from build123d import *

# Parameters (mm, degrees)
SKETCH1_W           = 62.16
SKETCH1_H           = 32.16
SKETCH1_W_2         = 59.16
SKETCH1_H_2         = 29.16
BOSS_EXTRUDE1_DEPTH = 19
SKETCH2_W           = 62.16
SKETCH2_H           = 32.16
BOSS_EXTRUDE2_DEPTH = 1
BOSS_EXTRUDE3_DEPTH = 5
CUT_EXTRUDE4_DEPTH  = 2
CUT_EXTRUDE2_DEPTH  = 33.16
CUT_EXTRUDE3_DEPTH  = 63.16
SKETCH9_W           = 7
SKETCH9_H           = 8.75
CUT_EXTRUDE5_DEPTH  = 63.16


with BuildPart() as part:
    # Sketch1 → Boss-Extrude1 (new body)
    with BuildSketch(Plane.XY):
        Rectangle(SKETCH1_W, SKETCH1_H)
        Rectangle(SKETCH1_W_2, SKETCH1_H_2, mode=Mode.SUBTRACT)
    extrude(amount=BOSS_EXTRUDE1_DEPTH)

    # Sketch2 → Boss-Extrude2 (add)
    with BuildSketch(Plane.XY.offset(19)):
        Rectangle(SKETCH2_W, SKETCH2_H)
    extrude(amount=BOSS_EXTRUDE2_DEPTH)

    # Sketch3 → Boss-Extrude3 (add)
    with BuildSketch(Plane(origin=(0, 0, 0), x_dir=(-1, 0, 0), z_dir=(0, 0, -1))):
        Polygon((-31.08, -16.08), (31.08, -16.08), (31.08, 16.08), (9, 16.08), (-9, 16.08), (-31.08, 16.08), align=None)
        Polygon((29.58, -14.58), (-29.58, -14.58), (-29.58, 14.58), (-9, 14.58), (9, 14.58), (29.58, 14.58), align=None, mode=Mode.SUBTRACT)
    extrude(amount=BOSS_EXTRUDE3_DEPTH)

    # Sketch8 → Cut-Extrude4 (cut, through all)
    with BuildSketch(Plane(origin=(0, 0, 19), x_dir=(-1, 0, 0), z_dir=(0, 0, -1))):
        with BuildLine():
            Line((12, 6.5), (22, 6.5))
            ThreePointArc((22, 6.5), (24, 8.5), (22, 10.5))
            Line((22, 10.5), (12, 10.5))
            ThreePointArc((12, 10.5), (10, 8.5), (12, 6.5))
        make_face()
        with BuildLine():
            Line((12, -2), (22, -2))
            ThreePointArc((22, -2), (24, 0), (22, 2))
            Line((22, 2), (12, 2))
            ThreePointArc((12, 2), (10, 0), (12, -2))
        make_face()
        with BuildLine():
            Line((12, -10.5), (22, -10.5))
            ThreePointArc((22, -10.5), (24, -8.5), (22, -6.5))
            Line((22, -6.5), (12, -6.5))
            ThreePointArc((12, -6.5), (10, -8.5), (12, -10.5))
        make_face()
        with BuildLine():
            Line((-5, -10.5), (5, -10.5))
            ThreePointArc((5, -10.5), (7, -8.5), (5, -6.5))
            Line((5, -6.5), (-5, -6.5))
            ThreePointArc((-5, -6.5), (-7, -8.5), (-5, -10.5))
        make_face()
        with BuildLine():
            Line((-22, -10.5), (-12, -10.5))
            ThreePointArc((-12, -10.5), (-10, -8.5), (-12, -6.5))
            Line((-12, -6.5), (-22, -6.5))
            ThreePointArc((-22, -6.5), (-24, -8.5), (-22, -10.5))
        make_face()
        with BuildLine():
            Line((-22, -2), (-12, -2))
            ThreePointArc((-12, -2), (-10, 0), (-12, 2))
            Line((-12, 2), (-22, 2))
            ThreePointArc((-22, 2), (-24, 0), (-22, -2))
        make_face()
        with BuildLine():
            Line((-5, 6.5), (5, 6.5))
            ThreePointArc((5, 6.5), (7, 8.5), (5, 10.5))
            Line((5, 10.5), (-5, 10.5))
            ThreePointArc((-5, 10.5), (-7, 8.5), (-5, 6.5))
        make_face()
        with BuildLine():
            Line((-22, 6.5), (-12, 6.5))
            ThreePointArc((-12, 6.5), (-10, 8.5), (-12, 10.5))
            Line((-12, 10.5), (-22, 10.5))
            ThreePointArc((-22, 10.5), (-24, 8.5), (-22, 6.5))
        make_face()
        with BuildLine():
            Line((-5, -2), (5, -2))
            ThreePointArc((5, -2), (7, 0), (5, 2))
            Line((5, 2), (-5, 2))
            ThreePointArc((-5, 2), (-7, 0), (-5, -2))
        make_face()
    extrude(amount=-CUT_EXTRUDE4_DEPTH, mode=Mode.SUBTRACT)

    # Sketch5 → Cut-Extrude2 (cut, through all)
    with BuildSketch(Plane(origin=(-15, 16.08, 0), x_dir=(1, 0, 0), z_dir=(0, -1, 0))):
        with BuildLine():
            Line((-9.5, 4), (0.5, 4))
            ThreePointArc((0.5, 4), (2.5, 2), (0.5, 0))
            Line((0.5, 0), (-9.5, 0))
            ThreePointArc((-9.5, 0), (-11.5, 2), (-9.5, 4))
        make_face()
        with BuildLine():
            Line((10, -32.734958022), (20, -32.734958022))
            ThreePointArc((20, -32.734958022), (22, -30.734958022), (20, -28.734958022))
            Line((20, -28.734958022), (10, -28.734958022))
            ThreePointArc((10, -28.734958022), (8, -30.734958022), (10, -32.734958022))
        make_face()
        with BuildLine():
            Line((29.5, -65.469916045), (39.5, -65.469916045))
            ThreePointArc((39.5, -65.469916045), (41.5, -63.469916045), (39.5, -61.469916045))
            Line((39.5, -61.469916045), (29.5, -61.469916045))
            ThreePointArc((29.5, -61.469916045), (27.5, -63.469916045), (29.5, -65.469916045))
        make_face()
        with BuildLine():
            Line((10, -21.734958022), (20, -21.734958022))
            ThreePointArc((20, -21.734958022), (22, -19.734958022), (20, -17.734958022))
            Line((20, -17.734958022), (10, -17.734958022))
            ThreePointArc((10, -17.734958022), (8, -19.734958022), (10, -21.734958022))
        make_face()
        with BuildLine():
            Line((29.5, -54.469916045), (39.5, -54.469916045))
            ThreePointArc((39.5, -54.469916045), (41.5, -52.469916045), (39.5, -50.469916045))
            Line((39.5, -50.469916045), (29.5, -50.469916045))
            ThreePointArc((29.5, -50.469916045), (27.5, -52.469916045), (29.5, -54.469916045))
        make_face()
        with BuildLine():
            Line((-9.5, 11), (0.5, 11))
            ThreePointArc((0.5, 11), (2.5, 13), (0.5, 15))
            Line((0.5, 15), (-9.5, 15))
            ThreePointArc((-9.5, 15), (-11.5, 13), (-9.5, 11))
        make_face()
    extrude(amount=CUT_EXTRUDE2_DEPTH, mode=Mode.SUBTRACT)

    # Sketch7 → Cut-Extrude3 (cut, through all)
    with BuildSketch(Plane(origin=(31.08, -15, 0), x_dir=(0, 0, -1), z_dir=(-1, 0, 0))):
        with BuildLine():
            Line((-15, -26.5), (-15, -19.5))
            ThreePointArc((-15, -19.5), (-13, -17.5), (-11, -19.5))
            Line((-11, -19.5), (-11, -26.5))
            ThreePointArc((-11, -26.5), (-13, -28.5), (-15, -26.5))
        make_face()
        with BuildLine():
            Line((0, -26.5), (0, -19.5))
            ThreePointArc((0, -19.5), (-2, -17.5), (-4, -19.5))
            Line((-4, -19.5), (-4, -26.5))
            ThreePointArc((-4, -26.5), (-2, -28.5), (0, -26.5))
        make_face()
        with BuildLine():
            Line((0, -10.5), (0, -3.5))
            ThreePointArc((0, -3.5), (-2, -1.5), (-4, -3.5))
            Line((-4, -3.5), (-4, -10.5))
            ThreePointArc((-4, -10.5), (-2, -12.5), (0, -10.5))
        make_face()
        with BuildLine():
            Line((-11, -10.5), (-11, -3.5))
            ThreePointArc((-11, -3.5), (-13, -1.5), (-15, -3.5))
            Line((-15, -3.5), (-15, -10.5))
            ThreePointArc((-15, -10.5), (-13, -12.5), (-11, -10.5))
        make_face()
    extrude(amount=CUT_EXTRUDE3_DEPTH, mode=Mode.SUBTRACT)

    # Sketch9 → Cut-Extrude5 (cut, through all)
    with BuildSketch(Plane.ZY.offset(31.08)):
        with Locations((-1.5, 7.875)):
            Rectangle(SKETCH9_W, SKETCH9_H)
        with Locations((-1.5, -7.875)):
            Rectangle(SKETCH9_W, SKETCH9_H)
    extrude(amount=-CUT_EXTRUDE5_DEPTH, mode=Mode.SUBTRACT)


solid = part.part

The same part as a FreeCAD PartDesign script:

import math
import FreeCAD as App
import Part
import Sketcher

V = App.Vector
Q = App.Units.Quantity


def add_polygon(sketch, points):
    """Adds a closed chain of lines whose ends are joined by coincident constraints."""
    first, n = sketch.GeometryCount, len(points)
    for a, b in zip(points, points[1:] + points[:1]):
        sketch.addGeometry(Part.LineSegment(App.Vector(*a, 0), App.Vector(*b, 0)), False)
    for i in range(n):
        sketch.addConstraint(Sketcher.Constraint("Coincident", first + i, 2, first + (i + 1) % n, 1))

doc = App.newDocument("Part")
body = doc.addObject("PartDesign::Body", "Body")

# Sketch on XY plane
sketch1 = body.newObject("Sketcher::SketchObject", "Sketch")
sketch1.AttachmentSupport = (doc.getObject("XY_Plane"), [""])
sketch1.MapMode = "FlatFace"
add_polygon(sketch1, [(-31, 16), (-31, -16), (31, -16), (31, 16)])  # lines 0-3
add_polygon(sketch1, [(30, -15), (-30, -15), (-30, 15), (30, 15)])  # lines 4-7
sketch1.addConstraint(Sketcher.Constraint("Vertical", 0))
sketch1.addConstraint(Sketcher.Constraint("Horizontal", 1))
sketch1.addConstraint(Sketcher.Constraint("Vertical", 2))
sketch1.addConstraint(Sketcher.Constraint("Horizontal", 3))
sketch1.addConstraint(Sketcher.Constraint("Horizontal", 4))
sketch1.addConstraint(Sketcher.Constraint("Vertical", 5))
sketch1.addConstraint(Sketcher.Constraint("Horizontal", 6))
sketch1.addConstraint(Sketcher.Constraint("Vertical", 7))
sketch1.addConstraint(Sketcher.Constraint("Symmetric", 0, 2, 2, 2, -1, 1))
sketch1.addConstraint(Sketcher.Constraint("Symmetric", 4, 2, 6, 2, -1, 1))
sketch1.addConstraint(Sketcher.Constraint("DistanceX", 1, 1, 1, 2, Q("62.16 mm")))
sketch1.addConstraint(Sketcher.Constraint("DistanceX", 4, 2, 4, 1, Q("59.16 mm")))
sketch1.addConstraint(Sketcher.Constraint("DistanceY", 0, 2, 0, 1, Q("32.16 mm")))
sketch1.addConstraint(Sketcher.Constraint("DistanceY", 5, 1, 5, 2, Q("29.16 mm")))
pad1 = body.newObject("PartDesign::Pad", "Pad")
pad1.Profile = sketch1
pad1.Length = 19

# Sketch on XY plane
sketch2 = body.newObject("Sketcher::SketchObject", "Sketch001")
sketch2.AttachmentSupport = (doc.getObject("XY_Plane"), [""])
sketch2.MapMode = "FlatFace"
sketch2.AttachmentOffset = App.Placement(V(0, 0, 19), App.Rotation())
add_polygon(sketch2, [(-31, 16), (-31, -16), (31, -16), (31, 16)])  # lines 0-3
sketch2.addConstraint(Sketcher.Constraint("Vertical", 0))
sketch2.addConstraint(Sketcher.Constraint("Horizontal", 1))
sketch2.addConstraint(Sketcher.Constraint("Vertical", 2))
sketch2.addConstraint(Sketcher.Constraint("Horizontal", 3))
sketch2.addConstraint(Sketcher.Constraint("Symmetric", 0, 2, 2, 2, -1, 1))
sketch2.addConstraint(Sketcher.Constraint("DistanceX", 1, 1, 1, 2, Q("62.16 mm")))
sketch2.addConstraint(Sketcher.Constraint("DistanceY", 0, 2, 0, 1, Q("32.16 mm")))
pad2 = body.newObject("PartDesign::Pad", "Pad001")
pad2.Profile = sketch2
pad2.Length = 1

# Sketch on XY plane
sketch3 = body.newObject("Sketcher::SketchObject", "Sketch002")
sketch3.AttachmentSupport = (doc.getObject("XY_Plane"), [""])
sketch3.MapMode = "FlatFace"
add_polygon(sketch3, [(31, -16), (-31, -16), (-31, 16), (31, 16)])  # lines 0-3
add_polygon(sketch3, [(-30, 15), (-30, -15), (30, -15), (30, 15)])  # lines 4-7
sketch3.addConstraint(Sketcher.Constraint("Horizontal", 0))
sketch3.addConstraint(Sketcher.Constraint("Vertical", 1))
sketch3.addConstraint(Sketcher.Constraint("Horizontal", 2))
sketch3.addConstraint(Sketcher.Constraint("Vertical", 3))
sketch3.addConstraint(Sketcher.Constraint("Vertical", 4))
sketch3.addConstraint(Sketcher.Constraint("Horizontal", 5))
sketch3.addConstraint(Sketcher.Constraint("Vertical", 6))
sketch3.addConstraint(Sketcher.Constraint("Horizontal", 7))
sketch3.addConstraint(Sketcher.Constraint("Symmetric", 0, 2, 2, 2, -1, 1))
sketch3.addConstraint(Sketcher.Constraint("Symmetric", 4, 2, 6, 2, -1, 1))
sketch3.addConstraint(Sketcher.Constraint("DistanceX", 0, 2, 0, 1, Q("62.16 mm")))
sketch3.addConstraint(Sketcher.Constraint("DistanceX", 5, 1, 5, 2, Q("59.16 mm")))
sketch3.addConstraint(Sketcher.Constraint("DistanceY", 1, 1, 1, 2, Q("32.16 mm")))
sketch3.addConstraint(Sketcher.Constraint("DistanceY", 4, 2, 4, 1, Q("29.16 mm")))
pad3 = body.newObject("PartDesign::Pad", "Pad002")
pad3.Profile = sketch3
pad3.Length = 5
pad3.Reversed = True

# Sketch on XY plane
sketch4 = body.newObject("Sketcher::SketchObject", "Sketch003")
sketch4.AttachmentSupport = (doc.getObject("XY_Plane"), [""])
sketch4.MapMode = "FlatFace"
sketch4.AttachmentOffset = App.Placement(V(0, 0, 19), App.Rotation())
sketch4.addGeometry(Part.LineSegment(V(-12, 6.5, 0), V(-22, 6.5, 0)), False)
sketch4.addGeometry(Part.ArcOfCircle(Part.Circle(V(-22, 8.5, 0), V(0, 0, 1), 2), math.radians(90), math.radians(270)), False)
sketch4.addGeometry(Part.LineSegment(V(-22, 10.5, 0), V(-12, 10.5, 0)), False)
sketch4.addGeometry(Part.ArcOfCircle(Part.Circle(V(-12, 8.5, 0), V(0, 0, 1), 2), math.radians(-90), math.radians(90)), False)
sketch4.addGeometry(Part.LineSegment(V(-12, -2, 0), V(-22, -2, 0)), False)
sketch4.addGeometry(Part.ArcOfCircle(Part.Circle(V(-22, 0, 0), V(0, 0, 1), 2), math.radians(90), math.radians(270)), False)
sketch4.addGeometry(Part.LineSegment(V(-22, 2, 0), V(-12, 2, 0)), False)
sketch4.addGeometry(Part.ArcOfCircle(Part.Circle(V(-12, 0, 0), V(0, 0, 1), 2), math.radians(-90), math.radians(90)), False)
sketch4.addGeometry(Part.LineSegment(V(-12, -10.5, 0), V(-22, -10.5, 0)), False)
sketch4.addGeometry(Part.ArcOfCircle(Part.Circle(V(-22, -8.5, 0), V(0, 0, 1), 2), math.radians(90), math.radians(270)), False)
sketch4.addGeometry(Part.LineSegment(V(-22, -6.5, 0), V(-12, -6.5, 0)), False)
sketch4.addGeometry(Part.ArcOfCircle(Part.Circle(V(-12, -8.5, 0), V(0, 0, 1), 2), math.radians(-90), math.radians(90)), False)
sketch4.addGeometry(Part.LineSegment(V(5, -10.5, 0), V(-5, -10.5, 0)), False)
sketch4.addGeometry(Part.ArcOfCircle(Part.Circle(V(-5, -8.5, 0), V(0, 0, 1), 2), math.radians(90), math.radians(270)), False)
sketch4.addGeometry(Part.LineSegment(V(-5, -6.5, 0), V(5, -6.5, 0)), False)
sketch4.addGeometry(Part.ArcOfCircle(Part.Circle(V(5, -8.5, 0), V(0, 0, 1), 2), math.radians(-90), math.radians(90)), False)
sketch4.addGeometry(Part.LineSegment(V(22, -10.5, 0), V(12, -10.5, 0)), False)
sketch4.addGeometry(Part.ArcOfCircle(Part.Circle(V(12, -8.5, 0), V(0, 0, 1), 2), math.radians(90), math.radians(270)), False)
sketch4.addGeometry(Part.LineSegment(V(12, -6.5, 0), V(22, -6.5, 0)), False)
sketch4.addGeometry(Part.ArcOfCircle(Part.Circle(V(22, -8.5, 0), V(0, 0, 1), 2), math.radians(-90), math.radians(90)), False)
sketch4.addGeometry(Part.LineSegment(V(22, -2, 0), V(12, -2, 0)), False)
sketch4.addGeometry(Part.ArcOfCircle(Part.Circle(V(12, 0, 0), V(0, 0, 1), 2), math.radians(90), math.radians(270)), False)
sketch4.addGeometry(Part.LineSegment(V(12, 2, 0), V(22, 2, 0)), False)
sketch4.addGeometry(Part.ArcOfCircle(Part.Circle(V(22, 0, 0), V(0, 0, 1), 2), math.radians(-90), math.radians(90)), False)
sketch4.addGeometry(Part.LineSegment(V(5, 6.5, 0), V(-5, 6.5, 0)), False)
sketch4.addGeometry(Part.ArcOfCircle(Part.Circle(V(-5, 8.5, 0), V(0, 0, 1), 2), math.radians(90), math.radians(270)), False)
sketch4.addGeometry(Part.LineSegment(V(-5, 10.5, 0), V(5, 10.5, 0)), False)
sketch4.addGeometry(Part.ArcOfCircle(Part.Circle(V(5, 8.5, 0), V(0, 0, 1), 2), math.radians(-90), math.radians(90)), False)
sketch4.addGeometry(Part.LineSegment(V(22, 6.5, 0), V(12, 6.5, 0)), False)
sketch4.addGeometry(Part.ArcOfCircle(Part.Circle(V(12, 8.5, 0), V(0, 0, 1), 2), math.radians(90), math.radians(270)), False)
sketch4.addGeometry(Part.LineSegment(V(12, 10.5, 0), V(22, 10.5, 0)), False)
sketch4.addGeometry(Part.ArcOfCircle(Part.Circle(V(22, 8.5, 0), V(0, 0, 1), 2), math.radians(-90), math.radians(90)), False)
sketch4.addGeometry(Part.LineSegment(V(5, -2, 0), V(-5, -2, 0)), False)
sketch4.addGeometry(Part.ArcOfCircle(Part.Circle(V(-5, 0, 0), V(0, 0, 1), 2), math.radians(90), math.radians(270)), False)
sketch4.addGeometry(Part.LineSegment(V(-5, 2, 0), V(5, 2, 0)), False)
sketch4.addGeometry(Part.ArcOfCircle(Part.Circle(V(5, 0, 0), V(0, 0, 1), 2), math.radians(-90), math.radians(90)), False)
sketch4.addConstraint(Sketcher.Constraint("Tangent", 0, 2, 1, 2))
sketch4.addConstraint(Sketcher.Constraint("Tangent", 1, 1, 2, 1))
sketch4.addConstraint(Sketcher.Constraint("Tangent", 2, 2, 3, 2))
sketch4.addConstraint(Sketcher.Constraint("Tangent", 3, 1, 0, 1))
sketch4.addConstraint(Sketcher.Constraint("Tangent", 4, 2, 5, 2))
sketch4.addConstraint(Sketcher.Constraint("Tangent", 5, 1, 6, 1))
sketch4.addConstraint(Sketcher.Constraint("Tangent", 6, 2, 7, 2))
sketch4.addConstraint(Sketcher.Constraint("Tangent", 7, 1, 4, 1))
sketch4.addConstraint(Sketcher.Constraint("Tangent", 8, 2, 9, 2))
sketch4.addConstraint(Sketcher.Constraint("Tangent", 9, 1, 10, 1))
sketch4.addConstraint(Sketcher.Constraint("Tangent", 10, 2, 11, 2))
sketch4.addConstraint(Sketcher.Constraint("Tangent", 11, 1, 8, 1))
sketch4.addConstraint(Sketcher.Constraint("Tangent", 12, 2, 13, 2))
sketch4.addConstraint(Sketcher.Constraint("Tangent", 13, 1, 14, 1))
sketch4.addConstraint(Sketcher.Constraint("Tangent", 14, 2, 15, 2))
sketch4.addConstraint(Sketcher.Constraint("Tangent", 15, 1, 12, 1))
sketch4.addConstraint(Sketcher.Constraint("Tangent", 16, 2, 17, 2))
sketch4.addConstraint(Sketcher.Constraint("Tangent", 17, 1, 18, 1))
sketch4.addConstraint(Sketcher.Constraint("Tangent", 18, 2, 19, 2))
sketch4.addConstraint(Sketcher.Constraint("Tangent", 19, 1, 16, 1))
sketch4.addConstraint(Sketcher.Constraint("Tangent", 20, 2, 21, 2))
sketch4.addConstraint(Sketcher.Constraint("Tangent", 21, 1, 22, 1))
sketch4.addConstraint(Sketcher.Constraint("Tangent", 22, 2, 23, 2))
sketch4.addConstraint(Sketcher.Constraint("Tangent", 23, 1, 20, 1))
sketch4.addConstraint(Sketcher.Constraint("Tangent", 24, 2, 25, 2))
sketch4.addConstraint(Sketcher.Constraint("Tangent", 25, 1, 26, 1))
sketch4.addConstraint(Sketcher.Constraint("Tangent", 26, 2, 27, 2))
sketch4.addConstraint(Sketcher.Constraint("Tangent", 27, 1, 24, 1))
sketch4.addConstraint(Sketcher.Constraint("Tangent", 28, 2, 29, 2))
sketch4.addConstraint(Sketcher.Constraint("Tangent", 29, 1, 30, 1))
sketch4.addConstraint(Sketcher.Constraint("Tangent", 30, 2, 31, 2))
sketch4.addConstraint(Sketcher.Constraint("Tangent", 31, 1, 28, 1))
sketch4.addConstraint(Sketcher.Constraint("Tangent", 32, 2, 33, 2))
sketch4.addConstraint(Sketcher.Constraint("Tangent", 33, 1, 34, 1))
sketch4.addConstraint(Sketcher.Constraint("Tangent", 34, 2, 35, 2))
sketch4.addConstraint(Sketcher.Constraint("Tangent", 35, 1, 32, 1))
sketch4.addConstraint(Sketcher.Constraint("Horizontal", 0))
sketch4.addConstraint(Sketcher.Constraint("Horizontal", 2))
sketch4.addConstraint(Sketcher.Constraint("Horizontal", 4))
sketch4.addConstraint(Sketcher.Constraint("Horizontal", 6))
sketch4.addConstraint(Sketcher.Constraint("Horizontal", 8))
sketch4.addConstraint(Sketcher.Constraint("Horizontal", 10))
sketch4.addConstraint(Sketcher.Constraint("Horizontal", 12))
sketch4.addConstraint(Sketcher.Constraint("Horizontal", 14))
sketch4.addConstraint(Sketcher.Constraint("Horizontal", 16))
sketch4.addConstraint(Sketcher.Constraint("Horizontal", 18))
sketch4.addConstraint(Sketcher.Constraint("Horizontal", 20))
sketch4.addConstraint(Sketcher.Constraint("Horizontal", 22))
sketch4.addConstraint(Sketcher.Constraint("Horizontal", 24))
sketch4.addConstraint(Sketcher.Constraint("Horizontal", 26))
sketch4.addConstraint(Sketcher.Constraint("Horizontal", 28))
sketch4.addConstraint(Sketcher.Constraint("Horizontal", 30))
sketch4.addConstraint(Sketcher.Constraint("Horizontal", 32))
sketch4.addConstraint(Sketcher.Constraint("Horizontal", 34))
sketch4.addConstraint(Sketcher.Constraint("Equal", 3, 5))
sketch4.addConstraint(Sketcher.Constraint("Equal", 7, 9))
sketch4.addConstraint(Sketcher.Constraint("Equal", 11, 13))
sketch4.addConstraint(Sketcher.Constraint("Equal", 15, 17))
sketch4.addConstraint(Sketcher.Constraint("Equal", 19, 21))
sketch4.addConstraint(Sketcher.Constraint("Equal", 23, 25))
sketch4.addConstraint(Sketcher.Constraint("Equal", 27, 29))
sketch4.addConstraint(Sketcher.Constraint("Equal", 31, 33))
sketch4.addConstraint(Sketcher.Constraint("Symmetric", 3, 3, 17, 3, -1, 1))
sketch4.addConstraint(Sketcher.Constraint("Symmetric", 7, 3, 21, 3, -1, 1))
sketch4.addConstraint(Sketcher.Constraint("Symmetric", 15, 3, 25, 3, -1, 1))
sketch4.addConstraint(Sketcher.Constraint("Symmetric", 11, 3, 29, 3, -1, 1))
sketch4.addConstraint(Sketcher.Constraint("Symmetric", 33, 3, 35, 3, -1, 1))
sketch4.addConstraint(Sketcher.Constraint("Symmetric", 11, 3, 17, 3, -2))
sketch4.addConstraint(Sketcher.Constraint("Symmetric", 5, 3, 23, 3, -2))
sketch4.addConstraint(Sketcher.Constraint("Horizontal", 11, 3, 13, 3))
sketch4.addConstraint(Sketcher.Constraint("Vertical", 1, 3, 5, 3))
sketch4.addConstraint(Sketcher.Constraint("Vertical", 3, 3, 7, 3))
sketch4.addConstraint(Sketcher.Constraint("Vertical", 5, 3, 9, 3))
sketch4.addConstraint(Sketcher.Constraint("Vertical", 19, 3, 23, 3))
sketch4.addConstraint(Sketcher.Constraint("Vertical", 13, 3, 25, 3))
sketch4.addConstraint(Sketcher.Constraint("Vertical", 15, 3, 27, 3))
sketch4.addConstraint(Sketcher.Constraint("Vertical", 23, 3, 31, 3))
sketch4.addConstraint(Sketcher.Constraint("Vertical", 25, 3, 33, 3))
sketch4.addConstraint(Sketcher.Constraint("Equal", 10, 12))
sketch4.addConstraint(Sketcher.Constraint("Radius", 1, Q("2 mm")))
sketch4.addConstraint(Sketcher.Constraint("DistanceX", 0, 2, 0, 1, Q("10 mm")))
sketch4.addConstraint(Sketcher.Constraint("DistanceX", 1, 3, -1, 1, Q("22 mm")))
sketch4.addConstraint(Sketcher.Constraint("DistanceY", 9, 3, 1, 3, Q("17 mm")))
pocket1 = body.newObject("PartDesign::Pocket", "Pocket")
pocket1.Profile = sketch4
pocket1.Type = "ThroughAll"
pocket1.Reversed = True

# Sketch on XZ plane
sketch5 = body.newObject("Sketcher::SketchObject", "Sketch004")
sketch5.AttachmentSupport = (doc.getObject("XZ_Plane"), [""])
sketch5.MapMode = "FlatFace"
sketch5.AttachmentOffset = App.Placement(V(0, 0, -16.08), App.Rotation())
sketch5.addGeometry(Part.LineSegment(V(-14.5, 4, 0), V(-24.5, 4, 0)), False)
sketch5.addGeometry(Part.ArcOfCircle(Part.Circle(V(-24.5, 2, 0), V(0, 0, 1), 2), math.radians(90), math.radians(270)), False)
sketch5.addGeometry(Part.LineSegment(V(-24.5, 0, 0), V(-14.5, 0, 0)), False)
sketch5.addGeometry(Part.ArcOfCircle(Part.Circle(V(-14.5, 2, 0), V(0, 0, 1), 2), math.radians(-90), math.radians(90)), False)
sketch5.addGeometry(Part.LineSegment(V(-5, -32.7, 0), V(5, -32.7, 0)), False)
sketch5.addGeometry(Part.ArcOfCircle(Part.Circle(V(5, -30.7, 0), V(0, 0, 1), 2), math.radians(-90), math.radians(90)), False)
sketch5.addGeometry(Part.LineSegment(V(5, -28.7, 0), V(-5, -28.7, 0)), False)
sketch5.addGeometry(Part.ArcOfCircle(Part.Circle(V(-5, -30.7, 0), V(0, 0, 1), 2), math.radians(90), math.radians(270)), False)
sketch5.addGeometry(Part.LineSegment(V(14.5, -65.5, 0), V(24.5, -65.5, 0)), False)
sketch5.addGeometry(Part.ArcOfCircle(Part.Circle(V(24.5, -63.5, 0), V(0, 0, 1), 2), math.radians(-90), math.radians(90)), False)
sketch5.addGeometry(Part.LineSegment(V(24.5, -61.5, 0), V(14.5, -61.5, 0)), False)
sketch5.addGeometry(Part.ArcOfCircle(Part.Circle(V(14.5, -63.5, 0), V(0, 0, 1), 2), math.radians(90), math.radians(270)), False)
sketch5.addGeometry(Part.LineSegment(V(-5, -21.7, 0), V(5, -21.7, 0)), False)
sketch5.addGeometry(Part.ArcOfCircle(Part.Circle(V(5, -19.7, 0), V(0, 0, 1), 2), math.radians(-90), math.radians(90)), False)
sketch5.addGeometry(Part.LineSegment(V(5, -17.7, 0), V(-5, -17.7, 0)), False)
sketch5.addGeometry(Part.ArcOfCircle(Part.Circle(V(-5, -19.7, 0), V(0, 0, 1), 2), math.radians(90), math.radians(270)), False)
sketch5.addGeometry(Part.LineSegment(V(14.5, -54.5, 0), V(24.5, -54.5, 0)), False)
sketch5.addGeometry(Part.ArcOfCircle(Part.Circle(V(24.5, -52.5, 0), V(0, 0, 1), 2), math.radians(-90), math.radians(90)), False)
sketch5.addGeometry(Part.LineSegment(V(24.5, -50.5, 0), V(14.5, -50.5, 0)), False)
sketch5.addGeometry(Part.ArcOfCircle(Part.Circle(V(14.5, -52.5, 0), V(0, 0, 1), 2), math.radians(90), math.radians(270)), False)
sketch5.addGeometry(Part.LineSegment(V(-24.5, 11, 0), V(-14.5, 11, 0)), False)
sketch5.addGeometry(Part.ArcOfCircle(Part.Circle(V(-14.5, 13, 0), V(0, 0, 1), 2), math.radians(-90), math.radians(90)), False)
sketch5.addGeometry(Part.LineSegment(V(-14.5, 15, 0), V(-24.5, 15, 0)), False)
sketch5.addGeometry(Part.ArcOfCircle(Part.Circle(V(-24.5, 13, 0), V(0, 0, 1), 2), math.radians(90), math.radians(270)), False)
sketch5.addConstraint(Sketcher.Constraint("Tangent", 0, 2, 1, 1))
sketch5.addConstraint(Sketcher.Constraint("Tangent", 1, 2, 2, 1))
sketch5.addConstraint(Sketcher.Constraint("Tangent", 2, 2, 3, 1))
sketch5.addConstraint(Sketcher.Constraint("Tangent", 3, 2, 0, 1))
sketch5.addConstraint(Sketcher.Constraint("Tangent", 4, 2, 5, 1))
sketch5.addConstraint(Sketcher.Constraint("Tangent", 5, 2, 6, 1))
sketch5.addConstraint(Sketcher.Constraint("Tangent", 6, 2, 7, 1))
sketch5.addConstraint(Sketcher.Constraint("Tangent", 7, 2, 4, 1))
sketch5.addConstraint(Sketcher.Constraint("Tangent", 8, 2, 9, 1))
sketch5.addConstraint(Sketcher.Constraint("Tangent", 9, 2, 10, 1))
sketch5.addConstraint(Sketcher.Constraint("Tangent", 10, 2, 11, 1))
sketch5.addConstraint(Sketcher.Constraint("Tangent", 11, 2, 8, 1))
sketch5.addConstraint(Sketcher.Constraint("Tangent", 12, 2, 13, 1))
sketch5.addConstraint(Sketcher.Constraint("Tangent", 13, 2, 14, 1))
sketch5.addConstraint(Sketcher.Constraint("Tangent", 14, 2, 15, 1))
sketch5.addConstraint(Sketcher.Constraint("Tangent", 15, 2, 12, 1))
sketch5.addConstraint(Sketcher.Constraint("Tangent", 16, 2, 17, 1))
sketch5.addConstraint(Sketcher.Constraint("Tangent", 17, 2, 18, 1))
sketch5.addConstraint(Sketcher.Constraint("Tangent", 18, 2, 19, 1))
sketch5.addConstraint(Sketcher.Constraint("Tangent", 19, 2, 16, 1))
sketch5.addConstraint(Sketcher.Constraint("Tangent", 20, 2, 21, 1))
sketch5.addConstraint(Sketcher.Constraint("Tangent", 21, 2, 22, 1))
sketch5.addConstraint(Sketcher.Constraint("Tangent", 22, 2, 23, 1))
sketch5.addConstraint(Sketcher.Constraint("Tangent", 23, 2, 20, 1))
sketch5.addConstraint(Sketcher.Constraint("Horizontal", 0))
sketch5.addConstraint(Sketcher.Constraint("Horizontal", 2))
sketch5.addConstraint(Sketcher.Constraint("Horizontal", 4))
sketch5.addConstraint(Sketcher.Constraint("Horizontal", 6))
sketch5.addConstraint(Sketcher.Constraint("Horizontal", 8))
sketch5.addConstraint(Sketcher.Constraint("Horizontal", 10))
sketch5.addConstraint(Sketcher.Constraint("Horizontal", 12))
sketch5.addConstraint(Sketcher.Constraint("Horizontal", 14))
sketch5.addConstraint(Sketcher.Constraint("Horizontal", 16))
sketch5.addConstraint(Sketcher.Constraint("Horizontal", 18))
sketch5.addConstraint(Sketcher.Constraint("Horizontal", 20))
sketch5.addConstraint(Sketcher.Constraint("Horizontal", 22))
sketch5.addConstraint(Sketcher.Constraint("Equal", 3, 5))
sketch5.addConstraint(Sketcher.Constraint("Equal", 7, 9))
sketch5.addConstraint(Sketcher.Constraint("Equal", 11, 13))
sketch5.addConstraint(Sketcher.Constraint("Equal", 15, 17))
sketch5.addConstraint(Sketcher.Constraint("Equal", 19, 21))
sketch5.addConstraint(Sketcher.Constraint("PointOnObject", 1, 2, -1))
sketch5.addConstraint(Sketcher.Constraint("Vertical", 5, 3, 13, 3))
sketch5.addConstraint(Sketcher.Constraint("Vertical", 7, 3, 15, 3))
sketch5.addConstraint(Sketcher.Constraint("Vertical", 9, 3, 17, 3))
sketch5.addConstraint(Sketcher.Constraint("Vertical", 11, 3, 19, 3))
sketch5.addConstraint(Sketcher.Constraint("Vertical", 3, 3, 21, 3))
sketch5.addConstraint(Sketcher.Constraint("Vertical", 1, 3, 23, 3))
sketch5.addConstraint(Sketcher.Constraint("Equal", 2, 4))
sketch5.addConstraint(Sketcher.Constraint("Equal", 6, 8))
sketch5.addConstraint(Sketcher.Constraint("Radius", 1, Q("2 mm")))
sketch5.addConstraint(Sketcher.Constraint("DistanceX", 0, 2, 0, 1, Q("10 mm")))
sketch5.addConstraint(Sketcher.Constraint("DistanceX", -1, 1, 5, 3, Q("5 mm")))
sketch5.addConstraint(Sketcher.Constraint("DistanceY", -1, 1, 21, 3, Q("13 mm")))
sketch5.addConstraint(Sketcher.Constraint("DistanceX", 3, 3, 9, 3, Q("39 mm")))
sketch5.addConstraint(Sketcher.Constraint("DistanceY", 5, 3, 13, 3, Q("11 mm")))
sketch5.addConstraint(Sketcher.Constraint("DistanceY", 9, 3, 17, 3, Q("11 mm")))
sketch5.addConstraint(Sketcher.Constraint("DistanceX", 1, 3, -1, 1, Q("24.5 mm")))
sketch5.addConstraint(Sketcher.Constraint("DistanceY", 5, 3, -1, 1, Q("30.734958 mm")))
sketch5.addConstraint(Sketcher.Constraint("DistanceY", 9, 3, 5, 3, Q("32.734958 mm")))
pocket2 = body.newObject("PartDesign::Pocket", "Pocket001")
pocket2.Profile = sketch5
pocket2.Type = "ThroughAll"
pocket2.Reversed = True

# Sketch on YZ plane
sketch6 = body.newObject("Sketcher::SketchObject", "Sketch005")
sketch6.AttachmentSupport = (doc.getObject("YZ_Plane"), [""])
sketch6.MapMode = "FlatFace"
sketch6.AttachmentOffset = App.Placement(V(0, 0, 31.08), App.Rotation())
sketch6.addGeometry(Part.LineSegment(V(4.5, 15, 0), V(11.5, 15, 0)), False)
sketch6.addGeometry(Part.ArcOfCircle(Part.Circle(V(11.5, 13, 0), V(0, 0, 1), 2), math.radians(-90), math.radians(90)), False)
sketch6.addGeometry(Part.LineSegment(V(11.5, 11, 0), V(4.5, 11, 0)), False)
sketch6.addGeometry(Part.ArcOfCircle(Part.Circle(V(4.5, 13, 0), V(0, 0, 1), 2), math.radians(90), math.radians(270)), False)
sketch6.addGeometry(Part.LineSegment(V(11.5, 0, 0), V(4.5, 0, 0)), False)
sketch6.addGeometry(Part.ArcOfCircle(Part.Circle(V(4.5, 2, 0), V(0, 0, 1), 2), math.radians(90), math.radians(270)), False)
sketch6.addGeometry(Part.LineSegment(V(4.5, 4, 0), V(11.5, 4, 0)), False)
sketch6.addGeometry(Part.ArcOfCircle(Part.Circle(V(11.5, 2, 0), V(0, 0, 1), 2), math.radians(-90), math.radians(90)), False)
sketch6.addGeometry(Part.LineSegment(V(-4.5, 0, 0), V(-11.5, 0, 0)), False)
sketch6.addGeometry(Part.ArcOfCircle(Part.Circle(V(-11.5, 2, 0), V(0, 0, 1), 2), math.radians(90), math.radians(270)), False)
sketch6.addGeometry(Part.LineSegment(V(-11.5, 4, 0), V(-4.5, 4, 0)), False)
sketch6.addGeometry(Part.ArcOfCircle(Part.Circle(V(-4.5, 2, 0), V(0, 0, 1), 2), math.radians(-90), math.radians(90)), False)
sketch6.addGeometry(Part.LineSegment(V(-4.5, 11, 0), V(-11.5, 11, 0)), False)
sketch6.addGeometry(Part.ArcOfCircle(Part.Circle(V(-11.5, 13, 0), V(0, 0, 1), 2), math.radians(90), math.radians(270)), False)
sketch6.addGeometry(Part.LineSegment(V(-11.5, 15, 0), V(-4.5, 15, 0)), False)
sketch6.addGeometry(Part.ArcOfCircle(Part.Circle(V(-4.5, 13, 0), V(0, 0, 1), 2), math.radians(-90), math.radians(90)), False)
sketch6.addConstraint(Sketcher.Constraint("Tangent", 0, 2, 1, 2))
sketch6.addConstraint(Sketcher.Constraint("Tangent", 1, 1, 2, 1))
sketch6.addConstraint(Sketcher.Constraint("Tangent", 2, 2, 3, 2))
sketch6.addConstraint(Sketcher.Constraint("Tangent", 3, 1, 0, 1))
sketch6.addConstraint(Sketcher.Constraint("Tangent", 4, 2, 5, 2))
sketch6.addConstraint(Sketcher.Constraint("Tangent", 5, 1, 6, 1))
sketch6.addConstraint(Sketcher.Constraint("Tangent", 6, 2, 7, 2))
sketch6.addConstraint(Sketcher.Constraint("Tangent", 7, 1, 4, 1))
sketch6.addConstraint(Sketcher.Constraint("Tangent", 8, 2, 9, 2))
sketch6.addConstraint(Sketcher.Constraint("Tangent", 9, 1, 10, 1))
sketch6.addConstraint(Sketcher.Constraint("Tangent", 10, 2, 11, 2))
sketch6.addConstraint(Sketcher.Constraint("Tangent", 11, 1, 8, 1))
sketch6.addConstraint(Sketcher.Constraint("Tangent", 12, 2, 13, 2))
sketch6.addConstraint(Sketcher.Constraint("Tangent", 13, 1, 14, 1))
sketch6.addConstraint(Sketcher.Constraint("Tangent", 14, 2, 15, 2))
sketch6.addConstraint(Sketcher.Constraint("Tangent", 15, 1, 12, 1))
sketch6.addConstraint(Sketcher.Constraint("Horizontal", 0))
sketch6.addConstraint(Sketcher.Constraint("Horizontal", 2))
sketch6.addConstraint(Sketcher.Constraint("Horizontal", 4))
sketch6.addConstraint(Sketcher.Constraint("Horizontal", 6))
sketch6.addConstraint(Sketcher.Constraint("Horizontal", 8))
sketch6.addConstraint(Sketcher.Constraint("Horizontal", 10))
sketch6.addConstraint(Sketcher.Constraint("Horizontal", 12))
sketch6.addConstraint(Sketcher.Constraint("Horizontal", 14))
sketch6.addConstraint(Sketcher.Constraint("Equal", 3, 5))
sketch6.addConstraint(Sketcher.Constraint("Equal", 7, 9))
sketch6.addConstraint(Sketcher.Constraint("Equal", 11, 13))
sketch6.addConstraint(Sketcher.Constraint("Symmetric", 7, 1, 8, 2, -1, 1))
sketch6.addConstraint(Sketcher.Constraint("Symmetric", 5, 3, 11, 3, -2))
sketch6.addConstraint(Sketcher.Constraint("Symmetric", 1, 3, 13, 3, -2))
sketch6.addConstraint(Sketcher.Constraint("Vertical", 3, 3, 5, 3))
sketch6.addConstraint(Sketcher.Constraint("Vertical", 1, 3, 7, 3))
sketch6.addConstraint(Sketcher.Constraint("Vertical", 11, 3, 15, 3))
sketch6.addConstraint(Sketcher.Constraint("Radius", 1, Q("2 mm")))
sketch6.addConstraint(Sketcher.Constraint("DistanceX", 0, 1, 0, 2, Q("7 mm")))
sketch6.addConstraint(Sketcher.Constraint("DistanceY", -1, 1, 1, 3, Q("13 mm")))
sketch6.addConstraint(Sketcher.Constraint("DistanceX", 9, 3, 5, 3, Q("16 mm")))
pocket3 = body.newObject("PartDesign::Pocket", "Pocket002")
pocket3.Profile = sketch6
pocket3.Type = "ThroughAll"

# Sketch on YZ plane
sketch7 = body.newObject("Sketcher::SketchObject", "Sketch006")
sketch7.AttachmentSupport = (doc.getObject("YZ_Plane"), [""])
sketch7.MapMode = "FlatFace"
sketch7.AttachmentOffset = App.Placement(V(0, 0, -31.08), App.Rotation())
add_polygon(sketch7, [(12, -5), (4, -5), (4, 2), (12, 2)])  # lines 0-3
add_polygon(sketch7, [(-4, -5), (-12, -5), (-12, 2), (-4, 2)])  # lines 4-7
sketch7.addConstraint(Sketcher.Constraint("Horizontal", 0))
sketch7.addConstraint(Sketcher.Constraint("Vertical", 1))
sketch7.addConstraint(Sketcher.Constraint("Horizontal", 2))
sketch7.addConstraint(Sketcher.Constraint("Vertical", 3))
sketch7.addConstraint(Sketcher.Constraint("Horizontal", 4))
sketch7.addConstraint(Sketcher.Constraint("Vertical", 5))
sketch7.addConstraint(Sketcher.Constraint("Horizontal", 6))
sketch7.addConstraint(Sketcher.Constraint("Vertical", 7))
sketch7.addConstraint(Sketcher.Constraint("Symmetric", 3, 2, 4, 2, -2))
sketch7.addConstraint(Sketcher.Constraint("Symmetric", 1, 2, 6, 2, -2))
sketch7.addConstraint(Sketcher.Constraint("DistanceY", 1, 1, 1, 2, Q("7 mm")))
sketch7.addConstraint(Sketcher.Constraint("DistanceY", 0, 2, -1, 1, Q("5 mm")))
sketch7.addConstraint(Sketcher.Constraint("DistanceX", 6, 2, 1, 2, Q("7 mm")))
sketch7.addConstraint(Sketcher.Constraint("DistanceX", 0, 2, 0, 1, Q("8.75 mm")))
pocket4 = body.newObject("PartDesign::Pocket", "Pocket003")
pocket4.Profile = sketch7
pocket4.Type = "ThroughAll"
pocket4.Reversed = True

doc.recompute()
